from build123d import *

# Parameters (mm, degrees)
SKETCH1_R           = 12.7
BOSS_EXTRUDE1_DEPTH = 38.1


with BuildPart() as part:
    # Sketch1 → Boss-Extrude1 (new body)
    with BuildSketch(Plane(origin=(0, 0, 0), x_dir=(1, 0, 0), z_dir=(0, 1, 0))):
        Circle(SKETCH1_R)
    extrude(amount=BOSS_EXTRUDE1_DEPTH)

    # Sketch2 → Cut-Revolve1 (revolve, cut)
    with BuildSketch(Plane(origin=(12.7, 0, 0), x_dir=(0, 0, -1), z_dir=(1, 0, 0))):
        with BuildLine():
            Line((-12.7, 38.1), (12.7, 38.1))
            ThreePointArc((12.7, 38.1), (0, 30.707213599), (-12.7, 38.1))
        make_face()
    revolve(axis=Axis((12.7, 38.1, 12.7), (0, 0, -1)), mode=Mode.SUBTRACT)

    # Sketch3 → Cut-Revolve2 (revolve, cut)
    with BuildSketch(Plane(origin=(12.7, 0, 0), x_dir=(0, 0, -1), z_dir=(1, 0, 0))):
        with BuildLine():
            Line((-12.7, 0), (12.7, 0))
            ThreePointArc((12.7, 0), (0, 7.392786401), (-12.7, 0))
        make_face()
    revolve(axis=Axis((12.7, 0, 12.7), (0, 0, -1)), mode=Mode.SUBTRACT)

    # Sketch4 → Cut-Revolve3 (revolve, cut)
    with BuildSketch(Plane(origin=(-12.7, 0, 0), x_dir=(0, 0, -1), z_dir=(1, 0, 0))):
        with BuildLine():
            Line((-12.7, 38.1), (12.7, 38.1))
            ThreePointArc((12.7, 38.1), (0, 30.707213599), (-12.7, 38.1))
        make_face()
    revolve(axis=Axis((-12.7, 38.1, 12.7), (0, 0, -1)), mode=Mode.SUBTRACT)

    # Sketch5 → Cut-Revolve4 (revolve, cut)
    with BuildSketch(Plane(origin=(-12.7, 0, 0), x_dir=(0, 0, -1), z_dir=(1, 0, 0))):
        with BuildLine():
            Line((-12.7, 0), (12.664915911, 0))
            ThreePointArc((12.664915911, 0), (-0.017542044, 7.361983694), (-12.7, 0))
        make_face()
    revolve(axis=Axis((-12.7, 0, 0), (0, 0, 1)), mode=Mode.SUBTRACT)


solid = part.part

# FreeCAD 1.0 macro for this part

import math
import FreeCAD as App
import Part
import Sketcher
Q = App.Units.Quantity

doc = App.newDocument("Part")
body = doc.addObject("PartDesign::Body", "Body")

sketch1 = doc.addObject("Sketcher::SketchObject", "Sketch")
body.addObject(sketch1)
sketch1.AttachmentSupport = (doc.XZ_Plane, [""])
sketch1.MapMode = "FlatFace"
sketch1.addGeometry(Part.Circle(App.Vector(0, 0, 0), App.Vector(0, 0, 1), 12.7), False)
sketch1.addConstraint([
    Sketcher.Constraint("Coincident", 0, 3, -1, 1),
    Sketcher.Constraint("Diameter", 0, Q("1 in")),
])
pad1 = doc.addObject("PartDesign::Pad", "Pad")
body.addObject(pad1)
pad1.Profile = sketch1
pad1.Length = Q("1.5 in")
pad1.Reversed = True

sketch2 = doc.addObject("Sketcher::SketchObject", "Sketch001")
body.addObject(sketch2)
sketch2.AttachmentSupport = (doc.YZ_Plane, [""])
sketch2.MapMode = "FlatFace"
sketch2.AttachmentOffset = App.Placement(App.Vector(0, 0, 0.5 * 25.4), App.Rotation())
sketch2.addGeometry([
    Part.LineSegment(App.Vector(38.1, -12.7, 0), App.Vector(38.1, 12.7, 0)),
    Part.ArcOfCircle(Part.Circle(App.Vector(45.312214, 0, 0), App.Vector(0, 0, 1), 14.605), math.radians(119.591846), math.radians(240.408154)),
], False)
sketch2.addGeometry(Part.LineSegment(App.Vector(38.1, 12.7, 0), App.Vector(38.1, -12.7, 0)), True)
sketch2.addConstraint([
    Sketcher.Constraint("Coincident", 0, 1, 1, 2),
    Sketcher.Constraint("Coincident", 1, 1, 0, 2),
    Sketcher.Constraint("Vertical", 0),
    Sketcher.Constraint("Vertical", 2),
    Sketcher.Constraint("Coincident", 2, 1, 1, 1),
    Sketcher.Constraint("PointOnObject", 1, 3, -1),
    Sketcher.Constraint("Equal", 0, 2),
    Sketcher.Constraint("DistanceY", 0, 1, 0, 2, Q("1 in")),
    Sketcher.Constraint("Radius", 1, Q("0.575 in")),
    Sketcher.Constraint("DistanceX", -1, 1, 0, 1, Q("1.5 in")),
])
groove = doc.addObject("PartDesign::Groove", "Groove")
body.addObject(groove)
groove.Profile = sketch2
groove.ReferenceAxis = (sketch2, ["Axis0"])
groove.Angle = 360

sketch3 = doc.addObject("Sketcher::SketchObject", "Sketch002")
body.addObject(sketch3)
sketch3.AttachmentSupport = (doc.YZ_Plane, [""])
sketch3.MapMode = "FlatFace"
sketch3.AttachmentOffset = App.Placement(App.Vector(0, 0, 0.5 * 25.4), App.Rotation())
sketch3.addGeometry([
    Part.LineSegment(App.Vector(0, 12.7, 0), App.Vector(0, -12.7, 0)),
    Part.ArcOfCircle(Part.Circle(App.Vector(-7.212214, 0, 0), App.Vector(0, 0, 1), 14.605), math.radians(-60.408154), math.radians(60.408154)),
], False)
sketch3.addConstraint([
    Sketcher.Constraint("Coincident", 0, 1, 1, 2),
    Sketcher.Constraint("Coincident", 1, 1, 0, 2),
    Sketcher.Constraint("Vertical", 0),
    Sketcher.Constraint("Symmetric", 0, 1, 1, 1, -1, 1),
    Sketcher.Constraint("DistanceY", 0, 2, 0, 1, Q("1 in")),
    Sketcher.Constraint("Radius", 1, Q("0.575 in")),
])
groove2 = doc.addObject("PartDesign::Groove", "Groove001")
body.addObject(groove2)
groove2.Profile = sketch3
groove2.ReferenceAxis = (sketch3, ["V_Axis"])
groove2.Angle = 360

sketch4 = doc.addObject("Sketcher::SketchObject", "Sketch003")
body.addObject(sketch4)
sketch4.AttachmentSupport = (doc.YZ_Plane, [""])
sketch4.MapMode = "FlatFace"
sketch4.AttachmentOffset = App.Placement(App.Vector(0, 0, -0.5 * 25.4), App.Rotation())
sketch4.addGeometry([
    Part.LineSegment(App.Vector(38.1, -12.7, 0), App.Vector(38.1, 12.7, 0)),
    Part.ArcOfCircle(Part.Circle(App.Vector(45.312214, 0, 0), App.Vector(0, 0, 1), 14.605), math.radians(119.591846), math.radians(240.408154)),
], False)
sketch4.addGeometry(Part.LineSegment(App.Vector(38.1, 12.7, 0), App.Vector(38.1, -12.7, 0)), True)
sketch4.addConstraint([
    Sketcher.Constraint("Coincident", 0, 1, 1, 2),
    Sketcher.Constraint("Coincident", 1, 1, 0, 2),
    Sketcher.Constraint("Vertical", 0),
    Sketcher.Constraint("Vertical", 2),
    Sketcher.Constraint("Coincident", 2, 1, 1, 1),
    Sketcher.Constraint("PointOnObject", 1, 3, -1),
    Sketcher.Constraint("Equal", 0, 2),
    Sketcher.Constraint("DistanceY", 0, 1, 0, 2, Q("1 in")),
    Sketcher.Constraint("Radius", 1, Q("0.575 in")),
    Sketcher.Constraint("DistanceX", -1, 1, 0, 1, Q("1.5 in")),
])
groove3 = doc.addObject("PartDesign::Groove", "Groove002")
body.addObject(groove3)
groove3.Profile = sketch4
groove3.ReferenceAxis = (sketch4, ["Axis0"])
groove3.Angle = 360

sketch5 = doc.addObject("Sketcher::SketchObject", "Sketch004")
body.addObject(sketch5)
sketch5.AttachmentSupport = (doc.YZ_Plane, [""])
sketch5.MapMode = "FlatFace"
sketch5.AttachmentOffset = App.Placement(App.Vector(0, 0, -0.5 * 25.4), App.Rotation())
sketch5.addGeometry([
    Part.LineSegment(App.Vector(0, 12.7, 0), App.Vector(0, -12.664916, 0)),
    Part.ArcOfCircle(Part.Circle(App.Vector(-7.243016, 0.017542, 0), App.Vector(0, 0, 1), 14.605), math.radians(-60.269092), math.radians(60.269092)),
], False)
sketch5.addConstraint([
    Sketcher.Constraint("Coincident", 0, 1, 1, 2),
    Sketcher.Constraint("Coincident", 1, 1, 0, 2),
    Sketcher.Constraint("Vertical", 0),
    Sketcher.Constraint("PointOnObject", 0, 1, -2),
    Sketcher.Constraint("Radius", 1, Q("0.575 in")),
    Sketcher.Constraint("DistanceY", -1, 1, 0, 1, Q("0.5 in")),
    Sketcher.Constraint("DistanceY", 0, 2, 0, 1, 25.364916),
])
groove4 = doc.addObject("PartDesign::Groove", "Groove003")
body.addObject(groove4)
groove4.Profile = sketch5
groove4.ReferenceAxis = (sketch5, ["V_Axis"])
groove4.Angle = 360

doc.recompute()
